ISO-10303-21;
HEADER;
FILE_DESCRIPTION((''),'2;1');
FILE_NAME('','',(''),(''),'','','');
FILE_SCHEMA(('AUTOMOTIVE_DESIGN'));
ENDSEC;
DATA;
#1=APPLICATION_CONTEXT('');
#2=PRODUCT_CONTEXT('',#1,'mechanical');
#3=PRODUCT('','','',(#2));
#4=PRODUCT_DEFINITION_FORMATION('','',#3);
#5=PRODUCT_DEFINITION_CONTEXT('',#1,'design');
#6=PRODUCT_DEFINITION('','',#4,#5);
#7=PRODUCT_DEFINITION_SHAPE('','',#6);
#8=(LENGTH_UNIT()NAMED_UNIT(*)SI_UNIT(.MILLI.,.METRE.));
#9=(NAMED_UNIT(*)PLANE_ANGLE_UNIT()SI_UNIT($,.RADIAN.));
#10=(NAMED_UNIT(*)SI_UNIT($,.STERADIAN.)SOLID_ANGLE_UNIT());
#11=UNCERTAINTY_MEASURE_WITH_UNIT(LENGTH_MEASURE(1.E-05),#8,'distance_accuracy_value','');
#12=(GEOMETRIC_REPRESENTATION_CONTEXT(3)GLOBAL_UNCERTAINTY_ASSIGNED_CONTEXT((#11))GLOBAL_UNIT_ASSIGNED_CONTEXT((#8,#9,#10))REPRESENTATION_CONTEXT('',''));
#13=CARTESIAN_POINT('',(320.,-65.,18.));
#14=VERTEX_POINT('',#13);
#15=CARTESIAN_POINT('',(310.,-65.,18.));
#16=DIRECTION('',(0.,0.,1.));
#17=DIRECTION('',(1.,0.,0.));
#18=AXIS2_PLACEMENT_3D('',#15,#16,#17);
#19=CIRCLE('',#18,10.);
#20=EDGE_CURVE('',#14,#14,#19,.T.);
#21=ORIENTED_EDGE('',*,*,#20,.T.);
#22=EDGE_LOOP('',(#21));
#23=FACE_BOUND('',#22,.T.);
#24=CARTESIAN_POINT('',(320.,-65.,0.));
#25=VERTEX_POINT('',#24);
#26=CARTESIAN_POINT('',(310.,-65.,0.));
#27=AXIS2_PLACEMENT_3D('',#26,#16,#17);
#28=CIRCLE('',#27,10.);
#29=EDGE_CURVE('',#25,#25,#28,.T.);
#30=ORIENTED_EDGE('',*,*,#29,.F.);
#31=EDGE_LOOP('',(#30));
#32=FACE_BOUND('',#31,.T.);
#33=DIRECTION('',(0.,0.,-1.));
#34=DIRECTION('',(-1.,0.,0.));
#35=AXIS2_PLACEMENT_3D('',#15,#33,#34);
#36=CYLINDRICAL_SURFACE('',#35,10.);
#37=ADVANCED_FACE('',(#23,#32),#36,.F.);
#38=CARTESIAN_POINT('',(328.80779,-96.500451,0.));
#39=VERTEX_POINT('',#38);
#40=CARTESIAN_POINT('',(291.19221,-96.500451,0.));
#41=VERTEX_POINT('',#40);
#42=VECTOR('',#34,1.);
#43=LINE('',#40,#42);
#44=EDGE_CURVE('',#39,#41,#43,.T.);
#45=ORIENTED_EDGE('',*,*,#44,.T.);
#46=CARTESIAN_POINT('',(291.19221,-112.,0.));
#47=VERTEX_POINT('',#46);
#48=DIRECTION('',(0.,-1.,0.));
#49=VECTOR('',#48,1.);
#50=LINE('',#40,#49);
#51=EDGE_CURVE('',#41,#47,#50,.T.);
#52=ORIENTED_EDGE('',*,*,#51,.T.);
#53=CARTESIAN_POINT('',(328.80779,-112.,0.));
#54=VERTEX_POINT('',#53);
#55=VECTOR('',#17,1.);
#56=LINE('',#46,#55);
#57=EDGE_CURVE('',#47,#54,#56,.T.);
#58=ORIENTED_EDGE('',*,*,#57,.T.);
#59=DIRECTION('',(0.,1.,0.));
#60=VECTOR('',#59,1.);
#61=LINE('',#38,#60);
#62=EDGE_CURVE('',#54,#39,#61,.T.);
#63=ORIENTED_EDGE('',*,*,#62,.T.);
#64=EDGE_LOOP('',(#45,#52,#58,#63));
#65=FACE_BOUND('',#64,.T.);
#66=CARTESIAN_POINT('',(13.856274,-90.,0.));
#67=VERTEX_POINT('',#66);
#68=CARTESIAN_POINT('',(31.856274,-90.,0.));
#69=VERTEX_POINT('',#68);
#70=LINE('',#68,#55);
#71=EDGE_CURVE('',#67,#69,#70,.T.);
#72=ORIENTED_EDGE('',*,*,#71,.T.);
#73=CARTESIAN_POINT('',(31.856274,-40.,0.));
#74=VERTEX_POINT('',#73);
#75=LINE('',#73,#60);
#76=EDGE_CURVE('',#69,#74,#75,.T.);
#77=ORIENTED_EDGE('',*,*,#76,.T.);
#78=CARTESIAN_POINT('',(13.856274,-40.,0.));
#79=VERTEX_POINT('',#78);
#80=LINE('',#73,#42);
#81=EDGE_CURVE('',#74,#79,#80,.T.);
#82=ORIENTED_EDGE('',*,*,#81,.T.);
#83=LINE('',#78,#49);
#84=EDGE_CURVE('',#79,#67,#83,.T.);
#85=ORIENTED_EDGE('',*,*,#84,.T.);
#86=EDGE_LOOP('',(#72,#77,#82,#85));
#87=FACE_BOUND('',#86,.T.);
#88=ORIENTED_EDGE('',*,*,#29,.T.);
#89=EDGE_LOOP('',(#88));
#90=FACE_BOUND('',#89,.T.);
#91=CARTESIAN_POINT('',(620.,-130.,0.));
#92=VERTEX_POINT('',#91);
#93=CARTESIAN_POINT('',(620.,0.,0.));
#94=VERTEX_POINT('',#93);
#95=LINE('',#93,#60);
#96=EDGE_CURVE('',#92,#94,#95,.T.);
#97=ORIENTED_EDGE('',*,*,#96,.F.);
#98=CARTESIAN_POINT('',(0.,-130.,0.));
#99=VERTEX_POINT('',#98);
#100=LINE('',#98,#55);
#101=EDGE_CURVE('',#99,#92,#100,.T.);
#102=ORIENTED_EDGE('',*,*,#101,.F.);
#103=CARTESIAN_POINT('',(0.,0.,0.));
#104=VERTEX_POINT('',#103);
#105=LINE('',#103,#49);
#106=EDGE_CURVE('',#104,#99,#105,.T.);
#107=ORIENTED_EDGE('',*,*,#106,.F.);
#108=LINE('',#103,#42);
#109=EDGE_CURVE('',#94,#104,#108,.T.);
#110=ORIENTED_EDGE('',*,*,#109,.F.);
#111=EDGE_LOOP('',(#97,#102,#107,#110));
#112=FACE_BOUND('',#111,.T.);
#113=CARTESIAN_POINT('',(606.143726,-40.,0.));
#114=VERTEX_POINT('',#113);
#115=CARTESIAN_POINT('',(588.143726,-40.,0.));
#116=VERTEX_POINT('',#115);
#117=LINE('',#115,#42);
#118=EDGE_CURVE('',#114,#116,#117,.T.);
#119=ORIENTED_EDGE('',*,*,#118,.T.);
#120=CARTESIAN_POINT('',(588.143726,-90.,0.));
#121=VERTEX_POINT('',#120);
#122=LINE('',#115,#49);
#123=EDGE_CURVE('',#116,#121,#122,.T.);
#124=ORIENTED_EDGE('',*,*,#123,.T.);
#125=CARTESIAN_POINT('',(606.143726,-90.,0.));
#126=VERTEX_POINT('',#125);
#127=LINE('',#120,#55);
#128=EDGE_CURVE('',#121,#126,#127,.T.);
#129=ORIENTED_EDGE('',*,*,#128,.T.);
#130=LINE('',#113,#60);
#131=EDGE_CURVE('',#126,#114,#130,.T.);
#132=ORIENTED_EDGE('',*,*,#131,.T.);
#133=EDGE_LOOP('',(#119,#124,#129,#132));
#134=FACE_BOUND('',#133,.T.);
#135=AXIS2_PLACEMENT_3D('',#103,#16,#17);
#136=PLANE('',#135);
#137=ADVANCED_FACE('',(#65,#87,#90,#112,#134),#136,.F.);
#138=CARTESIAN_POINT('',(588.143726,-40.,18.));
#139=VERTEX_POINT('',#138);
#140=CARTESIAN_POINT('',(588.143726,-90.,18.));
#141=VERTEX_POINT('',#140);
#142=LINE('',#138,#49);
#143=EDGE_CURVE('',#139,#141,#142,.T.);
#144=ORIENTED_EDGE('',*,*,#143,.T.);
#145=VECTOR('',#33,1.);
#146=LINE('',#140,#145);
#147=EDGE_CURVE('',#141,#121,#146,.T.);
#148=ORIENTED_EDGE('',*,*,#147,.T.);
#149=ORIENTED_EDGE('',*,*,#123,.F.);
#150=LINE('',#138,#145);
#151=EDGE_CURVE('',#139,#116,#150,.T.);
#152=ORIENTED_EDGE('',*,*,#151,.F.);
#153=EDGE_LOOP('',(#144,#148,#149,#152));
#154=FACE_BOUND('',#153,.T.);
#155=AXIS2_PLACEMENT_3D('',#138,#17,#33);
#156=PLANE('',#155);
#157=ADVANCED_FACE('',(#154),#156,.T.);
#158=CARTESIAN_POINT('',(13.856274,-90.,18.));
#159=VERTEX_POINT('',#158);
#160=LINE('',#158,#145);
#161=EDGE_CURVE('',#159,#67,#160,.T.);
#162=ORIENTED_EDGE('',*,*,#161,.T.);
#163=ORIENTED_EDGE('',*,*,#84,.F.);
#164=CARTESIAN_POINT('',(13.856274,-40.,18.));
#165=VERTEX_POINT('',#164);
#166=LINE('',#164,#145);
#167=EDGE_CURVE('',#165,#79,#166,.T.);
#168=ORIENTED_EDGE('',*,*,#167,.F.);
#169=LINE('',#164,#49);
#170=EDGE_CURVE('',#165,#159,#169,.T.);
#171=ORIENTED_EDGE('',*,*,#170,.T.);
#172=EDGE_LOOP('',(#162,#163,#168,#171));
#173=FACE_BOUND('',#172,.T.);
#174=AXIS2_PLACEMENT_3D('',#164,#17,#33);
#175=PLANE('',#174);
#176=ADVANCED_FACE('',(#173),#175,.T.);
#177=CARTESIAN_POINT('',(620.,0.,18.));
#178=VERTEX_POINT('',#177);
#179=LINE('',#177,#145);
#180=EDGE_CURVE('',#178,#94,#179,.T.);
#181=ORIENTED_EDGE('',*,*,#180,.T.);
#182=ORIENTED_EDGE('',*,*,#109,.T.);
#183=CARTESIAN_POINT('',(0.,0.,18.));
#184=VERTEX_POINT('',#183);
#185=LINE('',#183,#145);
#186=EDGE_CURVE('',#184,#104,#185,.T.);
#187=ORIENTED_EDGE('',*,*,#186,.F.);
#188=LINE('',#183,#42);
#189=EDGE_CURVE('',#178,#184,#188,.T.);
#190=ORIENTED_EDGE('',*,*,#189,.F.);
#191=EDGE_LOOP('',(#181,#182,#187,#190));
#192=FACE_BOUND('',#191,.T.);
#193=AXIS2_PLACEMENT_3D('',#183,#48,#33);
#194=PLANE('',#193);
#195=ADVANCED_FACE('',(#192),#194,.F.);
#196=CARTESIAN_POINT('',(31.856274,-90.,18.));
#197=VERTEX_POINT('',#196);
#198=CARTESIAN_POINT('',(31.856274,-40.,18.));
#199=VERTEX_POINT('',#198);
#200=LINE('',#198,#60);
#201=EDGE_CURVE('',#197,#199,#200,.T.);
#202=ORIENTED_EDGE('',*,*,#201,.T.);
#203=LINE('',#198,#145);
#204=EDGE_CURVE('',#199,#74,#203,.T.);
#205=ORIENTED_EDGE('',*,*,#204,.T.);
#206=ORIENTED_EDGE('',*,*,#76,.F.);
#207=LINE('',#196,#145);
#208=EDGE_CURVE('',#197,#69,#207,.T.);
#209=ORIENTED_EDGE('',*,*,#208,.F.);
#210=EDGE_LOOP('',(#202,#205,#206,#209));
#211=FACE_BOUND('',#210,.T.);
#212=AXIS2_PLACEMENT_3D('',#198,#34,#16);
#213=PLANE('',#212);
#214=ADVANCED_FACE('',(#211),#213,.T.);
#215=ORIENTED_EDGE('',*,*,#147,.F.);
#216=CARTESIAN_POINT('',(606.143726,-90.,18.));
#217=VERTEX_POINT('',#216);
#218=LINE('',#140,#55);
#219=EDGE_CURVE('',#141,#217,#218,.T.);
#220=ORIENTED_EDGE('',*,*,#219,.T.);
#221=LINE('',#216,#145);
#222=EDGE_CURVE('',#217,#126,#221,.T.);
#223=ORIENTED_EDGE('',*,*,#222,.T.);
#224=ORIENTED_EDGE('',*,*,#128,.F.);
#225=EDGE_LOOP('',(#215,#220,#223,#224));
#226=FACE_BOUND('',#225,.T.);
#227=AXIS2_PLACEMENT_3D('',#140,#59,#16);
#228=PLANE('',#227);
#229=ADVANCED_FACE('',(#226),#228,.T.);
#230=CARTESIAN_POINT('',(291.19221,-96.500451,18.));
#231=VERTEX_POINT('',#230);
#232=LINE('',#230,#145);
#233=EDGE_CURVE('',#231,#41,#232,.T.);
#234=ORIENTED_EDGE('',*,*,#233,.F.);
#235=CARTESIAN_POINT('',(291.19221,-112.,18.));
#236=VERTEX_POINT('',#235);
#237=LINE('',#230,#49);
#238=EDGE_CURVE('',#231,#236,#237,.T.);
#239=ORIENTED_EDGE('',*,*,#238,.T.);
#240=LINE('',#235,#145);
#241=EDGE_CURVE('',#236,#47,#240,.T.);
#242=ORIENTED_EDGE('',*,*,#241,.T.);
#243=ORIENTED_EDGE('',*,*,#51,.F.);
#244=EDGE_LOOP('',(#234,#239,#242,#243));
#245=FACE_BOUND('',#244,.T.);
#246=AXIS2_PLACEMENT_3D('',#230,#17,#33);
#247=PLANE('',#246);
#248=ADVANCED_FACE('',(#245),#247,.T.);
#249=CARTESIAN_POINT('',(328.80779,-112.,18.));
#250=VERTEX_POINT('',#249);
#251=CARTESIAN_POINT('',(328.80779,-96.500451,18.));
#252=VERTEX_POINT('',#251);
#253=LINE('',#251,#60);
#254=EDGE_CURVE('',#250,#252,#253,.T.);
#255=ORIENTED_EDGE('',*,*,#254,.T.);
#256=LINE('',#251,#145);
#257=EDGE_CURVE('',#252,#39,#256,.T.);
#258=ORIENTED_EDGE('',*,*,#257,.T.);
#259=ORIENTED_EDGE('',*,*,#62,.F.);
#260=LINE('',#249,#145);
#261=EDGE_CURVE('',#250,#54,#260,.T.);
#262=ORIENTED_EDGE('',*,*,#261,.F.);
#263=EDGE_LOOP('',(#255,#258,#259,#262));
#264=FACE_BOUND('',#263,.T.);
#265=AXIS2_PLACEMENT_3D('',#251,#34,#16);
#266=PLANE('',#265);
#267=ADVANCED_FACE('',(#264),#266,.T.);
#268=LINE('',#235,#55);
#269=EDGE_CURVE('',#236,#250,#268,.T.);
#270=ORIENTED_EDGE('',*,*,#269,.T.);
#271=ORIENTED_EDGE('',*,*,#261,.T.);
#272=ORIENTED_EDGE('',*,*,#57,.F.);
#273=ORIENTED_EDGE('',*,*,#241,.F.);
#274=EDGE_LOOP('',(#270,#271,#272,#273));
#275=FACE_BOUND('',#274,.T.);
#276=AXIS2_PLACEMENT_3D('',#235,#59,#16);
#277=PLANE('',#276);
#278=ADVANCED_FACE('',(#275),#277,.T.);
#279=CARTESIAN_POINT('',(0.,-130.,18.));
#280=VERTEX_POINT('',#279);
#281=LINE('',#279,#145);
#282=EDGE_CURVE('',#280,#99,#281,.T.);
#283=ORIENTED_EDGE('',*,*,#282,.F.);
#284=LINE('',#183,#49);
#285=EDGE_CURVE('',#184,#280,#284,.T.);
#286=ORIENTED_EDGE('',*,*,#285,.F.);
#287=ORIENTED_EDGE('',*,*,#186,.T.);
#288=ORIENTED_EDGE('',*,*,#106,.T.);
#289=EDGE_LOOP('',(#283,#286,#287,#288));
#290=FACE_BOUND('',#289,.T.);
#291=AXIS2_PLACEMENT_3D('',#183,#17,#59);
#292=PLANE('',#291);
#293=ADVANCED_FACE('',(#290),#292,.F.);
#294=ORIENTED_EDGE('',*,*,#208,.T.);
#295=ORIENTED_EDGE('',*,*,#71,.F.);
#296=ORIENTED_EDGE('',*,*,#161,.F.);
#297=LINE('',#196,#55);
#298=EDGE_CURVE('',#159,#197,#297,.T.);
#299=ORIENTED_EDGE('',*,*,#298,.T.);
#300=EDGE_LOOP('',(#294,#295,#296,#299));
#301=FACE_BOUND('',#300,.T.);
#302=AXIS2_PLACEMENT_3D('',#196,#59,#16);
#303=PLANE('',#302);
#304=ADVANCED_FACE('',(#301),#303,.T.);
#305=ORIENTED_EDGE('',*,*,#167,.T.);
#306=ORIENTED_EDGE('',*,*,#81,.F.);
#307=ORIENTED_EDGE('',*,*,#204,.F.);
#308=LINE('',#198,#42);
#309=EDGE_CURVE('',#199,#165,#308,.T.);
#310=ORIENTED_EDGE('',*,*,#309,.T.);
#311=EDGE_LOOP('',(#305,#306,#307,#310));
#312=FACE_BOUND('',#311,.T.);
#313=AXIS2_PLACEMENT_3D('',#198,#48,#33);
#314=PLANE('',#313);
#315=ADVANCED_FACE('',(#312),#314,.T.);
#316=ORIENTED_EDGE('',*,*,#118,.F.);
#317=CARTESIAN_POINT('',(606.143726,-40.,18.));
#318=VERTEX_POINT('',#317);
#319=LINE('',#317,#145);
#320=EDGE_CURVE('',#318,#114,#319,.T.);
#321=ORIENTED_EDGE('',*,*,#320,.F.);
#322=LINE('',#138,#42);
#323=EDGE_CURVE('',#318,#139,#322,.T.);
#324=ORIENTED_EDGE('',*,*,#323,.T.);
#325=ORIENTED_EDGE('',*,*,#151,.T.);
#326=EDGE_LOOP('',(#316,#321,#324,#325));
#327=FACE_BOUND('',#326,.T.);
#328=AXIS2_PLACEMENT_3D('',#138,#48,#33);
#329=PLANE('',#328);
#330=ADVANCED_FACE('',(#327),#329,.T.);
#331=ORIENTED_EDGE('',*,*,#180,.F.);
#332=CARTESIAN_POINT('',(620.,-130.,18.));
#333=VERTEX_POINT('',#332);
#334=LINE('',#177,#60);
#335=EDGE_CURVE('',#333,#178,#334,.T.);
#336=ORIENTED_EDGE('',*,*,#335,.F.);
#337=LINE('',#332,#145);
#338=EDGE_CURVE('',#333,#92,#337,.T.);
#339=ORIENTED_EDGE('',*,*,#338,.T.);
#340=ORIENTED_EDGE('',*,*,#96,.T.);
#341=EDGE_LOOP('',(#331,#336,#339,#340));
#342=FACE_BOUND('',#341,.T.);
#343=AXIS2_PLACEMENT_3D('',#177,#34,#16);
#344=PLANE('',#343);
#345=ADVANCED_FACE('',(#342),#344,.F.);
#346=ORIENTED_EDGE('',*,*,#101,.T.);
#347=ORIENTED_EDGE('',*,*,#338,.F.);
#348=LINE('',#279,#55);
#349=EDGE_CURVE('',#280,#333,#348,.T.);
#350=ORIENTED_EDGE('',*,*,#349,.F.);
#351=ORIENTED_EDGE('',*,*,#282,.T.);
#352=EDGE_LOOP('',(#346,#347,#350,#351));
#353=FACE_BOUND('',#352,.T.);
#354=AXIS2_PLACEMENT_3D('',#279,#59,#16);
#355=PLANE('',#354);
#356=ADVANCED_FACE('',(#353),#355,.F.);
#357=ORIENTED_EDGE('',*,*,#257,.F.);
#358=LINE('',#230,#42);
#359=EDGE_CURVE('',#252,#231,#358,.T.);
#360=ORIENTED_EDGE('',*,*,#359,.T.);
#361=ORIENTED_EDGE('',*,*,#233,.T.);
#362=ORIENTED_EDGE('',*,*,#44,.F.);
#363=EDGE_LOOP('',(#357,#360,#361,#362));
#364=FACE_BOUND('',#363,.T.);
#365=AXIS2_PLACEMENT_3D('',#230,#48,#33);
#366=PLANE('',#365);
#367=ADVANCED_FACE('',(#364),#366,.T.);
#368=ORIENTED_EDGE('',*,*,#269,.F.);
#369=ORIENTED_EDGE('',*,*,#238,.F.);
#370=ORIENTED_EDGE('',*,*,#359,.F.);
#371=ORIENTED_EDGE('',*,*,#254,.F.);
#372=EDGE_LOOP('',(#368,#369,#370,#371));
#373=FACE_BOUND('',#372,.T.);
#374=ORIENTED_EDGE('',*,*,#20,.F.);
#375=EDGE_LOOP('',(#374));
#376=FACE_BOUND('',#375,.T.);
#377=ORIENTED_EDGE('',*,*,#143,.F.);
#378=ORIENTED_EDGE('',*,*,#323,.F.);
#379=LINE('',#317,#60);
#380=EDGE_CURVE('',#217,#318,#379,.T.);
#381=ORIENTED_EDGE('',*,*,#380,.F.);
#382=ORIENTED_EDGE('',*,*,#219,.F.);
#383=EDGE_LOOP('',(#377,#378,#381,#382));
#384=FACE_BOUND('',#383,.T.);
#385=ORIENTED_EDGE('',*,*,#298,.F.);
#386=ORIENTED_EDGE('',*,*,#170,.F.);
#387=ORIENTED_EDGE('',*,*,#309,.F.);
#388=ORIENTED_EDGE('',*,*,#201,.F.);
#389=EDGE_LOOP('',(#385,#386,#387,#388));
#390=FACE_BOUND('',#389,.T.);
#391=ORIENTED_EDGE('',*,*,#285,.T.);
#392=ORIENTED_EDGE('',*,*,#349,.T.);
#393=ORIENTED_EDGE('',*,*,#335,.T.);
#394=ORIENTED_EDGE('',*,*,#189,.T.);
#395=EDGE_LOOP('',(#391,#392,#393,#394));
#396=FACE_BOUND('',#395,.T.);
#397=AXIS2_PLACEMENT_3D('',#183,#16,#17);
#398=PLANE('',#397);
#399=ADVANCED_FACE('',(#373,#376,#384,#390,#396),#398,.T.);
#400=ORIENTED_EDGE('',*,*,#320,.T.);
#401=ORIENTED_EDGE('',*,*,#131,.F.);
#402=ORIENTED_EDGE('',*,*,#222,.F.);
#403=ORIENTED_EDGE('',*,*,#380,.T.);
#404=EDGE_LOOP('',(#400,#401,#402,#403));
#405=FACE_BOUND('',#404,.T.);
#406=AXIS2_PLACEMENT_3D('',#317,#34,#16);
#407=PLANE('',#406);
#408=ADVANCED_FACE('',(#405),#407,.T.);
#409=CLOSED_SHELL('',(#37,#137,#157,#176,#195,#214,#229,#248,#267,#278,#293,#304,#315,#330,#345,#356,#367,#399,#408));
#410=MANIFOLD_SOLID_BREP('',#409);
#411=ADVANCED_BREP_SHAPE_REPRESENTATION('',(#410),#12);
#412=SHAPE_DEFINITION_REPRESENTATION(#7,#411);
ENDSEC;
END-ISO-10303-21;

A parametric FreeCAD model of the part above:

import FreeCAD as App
import Part
import Sketcher
Q = App.Units.Quantity


def add_polygon(sketch, points):
    """Adds a closed chain of lines whose ends are joined by coincident constraints."""
    first, n = sketch.GeometryCount, len(points)
    for a, b in zip(points, points[1:] + points[:1]):
        sketch.addGeometry(Part.LineSegment(App.Vector(*a, 0), App.Vector(*b, 0)), False)
    for i in range(n):
        sketch.addConstraint(Sketcher.Constraint("Coincident", first + i, 2, first + (i + 1) % n, 1))

doc = App.newDocument("Part")
body = doc.addObject("PartDesign::Body", "Body")

sketch1 = body.newObject("Sketcher::SketchObject", "Sketch")
sketch1.AttachmentSupport = (doc.getObject("XY_Plane"), [""])
sketch1.MapMode = "FlatFace"
add_polygon(sketch1, [(0, 0), (0, -130), (620, -130), (620, 0)])
add_polygon(sketch1, [(328.80779, -112), (291.19221, -112), (291.19221, -96.500451), (328.80779, -96.500451)])
add_polygon(sketch1, [(31.856274, -90), (13.856274, -90), (13.856274, -40), (31.856274, -40)])
sketch1.addGeometry(Part.Circle(App.Vector(310, -65, 0), App.Vector(0, 0, 1), 10), False)
add_polygon(sketch1, [(606.143726, -90), (588.143726, -90), (588.143726, -40), (606.143726, -40)])
sketch1.addConstraint(Sketcher.Constraint("Vertical", 0))
sketch1.addConstraint(Sketcher.Constraint("Horizontal", 1))
sketch1.addConstraint(Sketcher.Constraint("Vertical", 2))
sketch1.addConstraint(Sketcher.Constraint("Horizontal", 3))
sketch1.addConstraint(Sketcher.Constraint("Horizontal", 4))
sketch1.addConstraint(Sketcher.Constraint("Vertical", 5))
sketch1.addConstraint(Sketcher.Constraint("Horizontal", 6))
sketch1.addConstraint(Sketcher.Constraint("Vertical", 7))
sketch1.addConstraint(Sketcher.Constraint("Horizontal", 8))
sketch1.addConstraint(Sketcher.Constraint("Vertical", 9))
sketch1.addConstraint(Sketcher.Constraint("Horizontal", 10))
sketch1.addConstraint(Sketcher.Constraint("Vertical", 11))
sketch1.addConstraint(Sketcher.Constraint("Horizontal", 13))
sketch1.addConstraint(Sketcher.Constraint("Vertical", 14))
sketch1.addConstraint(Sketcher.Constraint("Horizontal", 15))
sketch1.addConstraint(Sketcher.Constraint("Vertical", 16))
sketch1.addConstraint(Sketcher.Constraint("Coincident", 3, 2, -1, 1))
sketch1.addConstraint(Sketcher.Constraint("Horizontal", 11, 2, 13, 2))
sketch1.addConstraint(Sketcher.Constraint("Horizontal", 10, 2, 14, 2))
sketch1.addConstraint(Sketcher.Constraint("Equal", 10, 13))
sketch1.addConstraint(Sketcher.Constraint("Diameter", 12, Q("20 mm")))
sketch1.addConstraint(Sketcher.Constraint("DistanceX", 1, 1, 1, 2, Q("620 mm")))
sketch1.addConstraint(Sketcher.Constraint("DistanceX", 8, 2, 8, 1, Q("18 mm")))
sketch1.addConstraint(Sketcher.Constraint("DistanceY", 0, 2, 0, 1, Q("130 mm")))
sketch1.addConstraint(Sketcher.Constraint("DistanceY", 9, 1, 9, 2, Q("50 mm")))
sketch1.addConstraint(Sketcher.Constraint("DistanceX", -1, 1, 12, 3, Q("310 mm")))
sketch1.addConstraint(Sketcher.Constraint("DistanceY", 12, 3, -1, 1, Q("65 mm")))
sketch1.addConstraint(Sketcher.Constraint("DistanceY", 4, 2, -1, 1, Q("112 mm")))
sketch1.addConstraint(Sketcher.Constraint("DistanceY", 8, 2, -1, 1, Q("90 mm")))
sketch1.addConstraint(Sketcher.Constraint("DistanceX", 4, 2, 4, 1, Q("37.615581 mm")))
sketch1.addConstraint(Sketcher.Constraint("DistanceY", 5, 1, 5, 2, Q("15.499549 mm")))
sketch1.addConstraint(Sketcher.Constraint("DistanceX", -1, 1, 4, 2, Q("291.19221 mm")))
sketch1.addConstraint(Sketcher.Constraint("DistanceX", -1, 1, 8, 2, Q("13.856274 mm")))
sketch1.addConstraint(Sketcher.Constraint("DistanceX", -1, 1, 13, 2, Q("588.143726 mm")))
pad1 = body.newObject("PartDesign::Pad", "Pad")
pad1.Profile = sketch1
pad1.Length = 18

doc.recompute()
